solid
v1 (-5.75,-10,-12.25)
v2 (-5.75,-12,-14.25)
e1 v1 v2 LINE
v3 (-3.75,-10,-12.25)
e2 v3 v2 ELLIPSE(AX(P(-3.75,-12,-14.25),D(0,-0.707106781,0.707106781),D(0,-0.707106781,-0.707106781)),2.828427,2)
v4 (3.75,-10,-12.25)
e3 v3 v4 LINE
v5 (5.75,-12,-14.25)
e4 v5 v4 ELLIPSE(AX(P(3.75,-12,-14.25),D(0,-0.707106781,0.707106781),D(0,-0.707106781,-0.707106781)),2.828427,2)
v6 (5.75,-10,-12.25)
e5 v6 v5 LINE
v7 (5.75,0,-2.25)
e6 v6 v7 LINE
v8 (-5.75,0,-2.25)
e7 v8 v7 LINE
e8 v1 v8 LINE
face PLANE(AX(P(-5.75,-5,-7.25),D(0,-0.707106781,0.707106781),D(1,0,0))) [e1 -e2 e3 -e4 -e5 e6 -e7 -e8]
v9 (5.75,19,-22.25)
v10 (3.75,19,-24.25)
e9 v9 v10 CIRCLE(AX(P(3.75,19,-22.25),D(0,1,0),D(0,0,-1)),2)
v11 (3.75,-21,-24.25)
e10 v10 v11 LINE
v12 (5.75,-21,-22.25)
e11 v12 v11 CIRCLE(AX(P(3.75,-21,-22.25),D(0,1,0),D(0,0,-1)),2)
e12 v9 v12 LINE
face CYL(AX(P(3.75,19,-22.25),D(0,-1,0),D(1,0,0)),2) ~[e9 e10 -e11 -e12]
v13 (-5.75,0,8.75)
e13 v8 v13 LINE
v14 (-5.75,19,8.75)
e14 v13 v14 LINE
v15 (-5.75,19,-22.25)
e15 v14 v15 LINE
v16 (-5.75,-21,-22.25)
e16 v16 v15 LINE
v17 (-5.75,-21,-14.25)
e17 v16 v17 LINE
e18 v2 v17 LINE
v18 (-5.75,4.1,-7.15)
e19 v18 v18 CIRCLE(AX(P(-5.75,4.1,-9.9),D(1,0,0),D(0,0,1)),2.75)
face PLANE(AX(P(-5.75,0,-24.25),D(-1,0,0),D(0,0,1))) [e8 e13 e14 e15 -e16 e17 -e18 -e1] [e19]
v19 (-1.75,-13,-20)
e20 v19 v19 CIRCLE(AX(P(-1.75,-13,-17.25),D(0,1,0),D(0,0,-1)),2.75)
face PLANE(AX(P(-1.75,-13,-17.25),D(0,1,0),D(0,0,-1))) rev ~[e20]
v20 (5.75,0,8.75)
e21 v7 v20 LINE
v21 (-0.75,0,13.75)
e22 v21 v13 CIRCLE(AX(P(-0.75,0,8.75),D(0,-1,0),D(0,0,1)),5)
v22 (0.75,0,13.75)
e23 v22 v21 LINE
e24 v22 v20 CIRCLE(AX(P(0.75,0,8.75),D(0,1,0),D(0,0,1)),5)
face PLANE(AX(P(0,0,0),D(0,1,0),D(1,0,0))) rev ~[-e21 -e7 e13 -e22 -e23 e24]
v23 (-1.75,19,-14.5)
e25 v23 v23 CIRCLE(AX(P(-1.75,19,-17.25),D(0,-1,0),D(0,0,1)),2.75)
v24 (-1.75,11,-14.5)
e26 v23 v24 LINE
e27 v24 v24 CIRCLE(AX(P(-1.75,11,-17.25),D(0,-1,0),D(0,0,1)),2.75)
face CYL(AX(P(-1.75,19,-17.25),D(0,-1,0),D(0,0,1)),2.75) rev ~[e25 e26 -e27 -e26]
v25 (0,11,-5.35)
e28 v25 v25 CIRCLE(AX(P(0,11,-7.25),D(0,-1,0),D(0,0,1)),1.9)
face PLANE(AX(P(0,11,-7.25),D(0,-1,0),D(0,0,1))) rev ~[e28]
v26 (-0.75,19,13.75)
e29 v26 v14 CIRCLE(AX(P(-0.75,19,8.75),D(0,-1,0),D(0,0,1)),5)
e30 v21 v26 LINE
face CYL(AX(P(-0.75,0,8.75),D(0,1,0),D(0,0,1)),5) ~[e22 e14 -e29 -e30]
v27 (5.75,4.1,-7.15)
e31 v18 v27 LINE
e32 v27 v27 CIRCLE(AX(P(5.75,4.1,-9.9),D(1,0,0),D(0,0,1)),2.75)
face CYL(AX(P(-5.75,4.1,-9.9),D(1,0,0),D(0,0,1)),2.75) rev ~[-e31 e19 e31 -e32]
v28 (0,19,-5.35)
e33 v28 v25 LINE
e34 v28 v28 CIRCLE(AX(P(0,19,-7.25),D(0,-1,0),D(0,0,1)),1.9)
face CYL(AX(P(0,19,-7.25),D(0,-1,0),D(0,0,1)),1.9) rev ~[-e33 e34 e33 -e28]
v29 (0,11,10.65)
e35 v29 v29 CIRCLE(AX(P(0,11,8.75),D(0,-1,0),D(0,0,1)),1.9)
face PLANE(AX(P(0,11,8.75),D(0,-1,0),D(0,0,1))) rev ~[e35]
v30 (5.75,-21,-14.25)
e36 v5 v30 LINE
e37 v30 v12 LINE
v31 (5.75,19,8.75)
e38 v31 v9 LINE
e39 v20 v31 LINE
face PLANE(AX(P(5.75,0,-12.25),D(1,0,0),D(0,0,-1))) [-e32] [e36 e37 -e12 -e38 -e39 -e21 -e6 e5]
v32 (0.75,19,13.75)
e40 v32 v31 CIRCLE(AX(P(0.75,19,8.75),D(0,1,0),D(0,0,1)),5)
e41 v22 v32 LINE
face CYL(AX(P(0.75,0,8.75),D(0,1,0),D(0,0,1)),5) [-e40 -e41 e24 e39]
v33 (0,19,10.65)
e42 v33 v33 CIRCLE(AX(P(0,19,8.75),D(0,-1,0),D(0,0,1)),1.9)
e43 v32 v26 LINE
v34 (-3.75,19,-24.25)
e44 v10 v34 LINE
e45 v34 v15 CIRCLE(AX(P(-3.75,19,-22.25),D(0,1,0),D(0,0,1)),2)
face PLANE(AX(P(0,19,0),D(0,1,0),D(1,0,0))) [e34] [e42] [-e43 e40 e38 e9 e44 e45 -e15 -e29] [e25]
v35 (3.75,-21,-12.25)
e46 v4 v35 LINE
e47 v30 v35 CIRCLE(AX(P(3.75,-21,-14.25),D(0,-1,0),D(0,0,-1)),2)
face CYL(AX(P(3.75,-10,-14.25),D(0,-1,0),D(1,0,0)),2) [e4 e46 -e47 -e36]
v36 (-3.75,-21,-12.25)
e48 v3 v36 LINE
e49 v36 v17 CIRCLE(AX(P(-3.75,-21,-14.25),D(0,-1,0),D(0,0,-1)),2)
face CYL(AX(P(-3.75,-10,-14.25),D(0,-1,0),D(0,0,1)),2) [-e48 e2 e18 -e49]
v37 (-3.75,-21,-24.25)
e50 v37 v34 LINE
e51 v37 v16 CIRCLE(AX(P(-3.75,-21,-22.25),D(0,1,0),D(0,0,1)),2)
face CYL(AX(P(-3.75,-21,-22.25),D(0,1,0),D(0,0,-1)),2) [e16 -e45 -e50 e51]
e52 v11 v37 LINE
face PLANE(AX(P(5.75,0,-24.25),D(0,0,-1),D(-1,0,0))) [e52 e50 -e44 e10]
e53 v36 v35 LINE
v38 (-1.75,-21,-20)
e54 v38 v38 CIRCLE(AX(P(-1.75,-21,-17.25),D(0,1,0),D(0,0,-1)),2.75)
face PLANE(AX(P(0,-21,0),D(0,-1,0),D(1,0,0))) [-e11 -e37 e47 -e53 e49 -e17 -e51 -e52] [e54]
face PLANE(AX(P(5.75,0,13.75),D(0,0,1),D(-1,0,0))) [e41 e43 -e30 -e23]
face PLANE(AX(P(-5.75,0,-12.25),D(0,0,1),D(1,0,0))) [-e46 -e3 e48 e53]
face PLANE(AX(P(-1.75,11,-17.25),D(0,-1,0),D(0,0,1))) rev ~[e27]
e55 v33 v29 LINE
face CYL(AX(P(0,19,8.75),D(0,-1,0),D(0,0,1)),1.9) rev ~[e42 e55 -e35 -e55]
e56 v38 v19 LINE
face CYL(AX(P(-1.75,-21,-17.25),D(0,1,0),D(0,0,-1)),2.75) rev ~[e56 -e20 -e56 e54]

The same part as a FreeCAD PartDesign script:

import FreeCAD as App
import Part
import Sketcher
from FreeCAD import Vector


def edges_at(feature, points):
    """Names of the edges that pass closest to the given points."""
    edges = feature.Shape.Edges
    near = lambda p: min(range(len(edges)), key=lambda i: edges[i].distToShape(Part.Vertex(*p))[0])
    return sorted({f"Edge{near(p) + 1}" for p in points})


def add_polygon(sketch, points):
    """Adds a closed chain of lines whose ends are joined by coincident constraints."""
    first, n = sketch.GeometryCount, len(points)
    for a, b in zip(points, points[1:] + points[:1]):
        sketch.addGeometry(Part.LineSegment(App.Vector(*a, 0), App.Vector(*b, 0)), False)
    for i in range(n):
        sketch.addConstraint(Sketcher.Constraint("Coincident", first + i, 2, first + (i + 1) % n, 1))

doc = App.newDocument("Part")
params = doc.addObject("Spreadsheet::Sheet", "Params")
for row, (alias, value) in enumerate([
    ("sketch1_width", "11.5 mm"),
    ("sketch1_height", "27.5 mm"),
    ("pad1_length", "19 mm"),
    ("fillet_radius", "5 mm"),
    ("sketch2_diameter", "3.8 mm"),
    ("hole_diameter", "3.8 mm"),
    ("hole_depth", "8 mm"),
    ("sketch3_diameter", "5.5 mm"),
    ("hole2_diameter", "5.5 mm"),
    ("sketch4_width", "11.5 mm"),
    ("sketch4_height", "10.5 mm"),
    ("pad2_length", "19 mm"),
    ("sketch5_diameter", "5.5 mm"),
    ("hole3_diameter", "5.5 mm"),
    ("hole3_depth", "8 mm"),
    ("sketch6_height", "12 mm"),
    ("sketch6_width", "11.5 mm"),
    ("pad3_length", "21 mm"),
    ("chamfer_size", "10 mm"),
    ("sketch7_diameter", "5.5 mm"),
    ("hole4_diameter", "5.5 mm"),
    ("hole4_depth", "8 mm"),
    ("fillet2_radius", "2 mm"),
], start=1):
    params.set(f"A{row}", alias)
    params.set(f"B{row}", "=" + value)
    params.setAlias(f"B{row}", alias)

body = doc.addObject("PartDesign::Body", "Body")

# Sketch on XZ plane
sketch1 = body.newObject("Sketcher::SketchObject", "Sketch")
sketch1.AttachmentSupport = (doc.getObject("XZ_Plane"), [""])
sketch1.MapMode = "FlatFace"
add_polygon(sketch1, [(-5.75, 13.75), (5.75, 13.75), (5.75, -13.75), (-5.75, -13.75)])  # lines 0-3
sketch1.addConstraint(Sketcher.Constraint("Horizontal", 0))
sketch1.addConstraint(Sketcher.Constraint("Vertical", 1))
sketch1.addConstraint(Sketcher.Constraint("Horizontal", 2))
sketch1.addConstraint(Sketcher.Constraint("Vertical", 3))
sketch1.addConstraint(Sketcher.Constraint("Symmetric", 0, 2, 2, 2, -1, 1))
sketch1.addConstraint(Sketcher.Constraint("DistanceX", 0, 1, 0, 2, 11.5))
sketch1.addConstraint(Sketcher.Constraint("DistanceY", 1, 2, 1, 1, 27.5))
sketch1.setExpression("Constraints[9]", "Params.sketch1_width")
sketch1.setExpression("Constraints[10]", "Params.sketch1_height")
pad1 = body.newObject("PartDesign::Pad", "Pad")
pad1.Profile = sketch1
pad1.setExpression("Length", "Params.pad1_length")
pad1.Reversed = True
doc.recompute()

fillet = body.newObject("PartDesign::Fillet", "Fillet")
fillet.Base = (pad1, edges_at(pad1, [(5.75, 9.5, 13.75), (-5.75, 9.5, 13.75)]))
fillet.setExpression("Radius", "Params.fillet_radius")

# Sketch on XZ plane
sketch2 = body.newObject("Sketcher::SketchObject", "Sketch001")
sketch2.AttachmentSupport = (doc.getObject("XZ_Plane"), [""])
sketch2.MapMode = "FlatFace"
sketch2.AttachmentOffset = App.Placement(Vector(0, 0, -19), App.Rotation())
sketch2.addGeometry(Part.Circle(Vector(0, -7.25, 0), Vector(0, 0, 1), 1.9), False)
sketch2.addGeometry(Part.Circle(Vector(0, 8.75, 0), Vector(0, 0, 1), 1.9), False)
sketch2.addConstraint(Sketcher.Constraint("Equal", 0, 1))
sketch2.addConstraint(Sketcher.Constraint("PointOnObject", 0, 3, -2))
sketch2.addConstraint(Sketcher.Constraint("PointOnObject", 1, 3, -2))
sketch2.addConstraint(Sketcher.Constraint("Diameter", 0, 3.8))
sketch2.addConstraint(Sketcher.Constraint("DistanceY", 0, 3, 1, 3, 16.0))
sketch2.addConstraint(Sketcher.Constraint("DistanceY", 0, 3, -1, 1, 7.25))
sketch2.setExpression("Constraints[3]", "Params.sketch2_diameter")
doc.recompute()
hole = body.newObject("PartDesign::Hole", "Hole")
hole.Profile = sketch2
hole.ThreadType = "None"
hole.setExpression("Diameter", "Params.hole_diameter")
hole.DepthType = "Dimension"
hole.setExpression("Depth", "Params.hole_depth")
hole.DrillPoint = "Flat"
hole.Reversed = True

# Sketch on YZ plane
sketch3 = body.newObject("Sketcher::SketchObject", "Sketch002")
sketch3.AttachmentSupport = (doc.getObject("YZ_Plane"), [""])
sketch3.MapMode = "FlatFace"
sketch3.AttachmentOffset = App.Placement(Vector(0, 0, -5.75), App.Rotation())
sketch3.addGeometry(Part.Circle(Vector(4.1, -9.9, 0), Vector(0, 0, 1), 2.75), False)
sketch3.addConstraint(Sketcher.Constraint("Diameter", 0, 5.5))
sketch3.addConstraint(Sketcher.Constraint("DistanceX", -1, 1, 0, 3, 4.1))
sketch3.addConstraint(Sketcher.Constraint("DistanceY", 0, 3, -1, 1, 9.9))
sketch3.setExpression("Constraints[0]", "Params.sketch3_diameter")
doc.recompute()
hole2 = body.newObject("PartDesign::Hole", "Hole001")
hole2.Profile = sketch3
hole2.ThreadType = "None"
hole2.setExpression("Diameter", "Params.hole2_diameter")
hole2.DepthType = "ThroughAll"
hole2.Reversed = True

# Sketch on XZ plane
sketch4 = body.newObject("Sketcher::SketchObject", "Sketch003")
sketch4.AttachmentSupport = (doc.getObject("XZ_Plane"), [""])
sketch4.MapMode = "FlatFace"
sketch4.AttachmentOffset = App.Placement(Vector(0, 0, -19), App.Rotation())
add_polygon(sketch4, [(-5.75, -24.25), (-5.75, -13.75), (5.75, -13.75), (5.75, -24.25)])  # lines 0-3
sketch4.addConstraint(Sketcher.Constraint("Vertical", 0))
sketch4.addConstraint(Sketcher.Constraint("Horizontal", 1))
sketch4.addConstraint(Sketcher.Constraint("Vertical", 2))
sketch4.addConstraint(Sketcher.Constraint("Horizontal", 3))
sketch4.addConstraint(Sketcher.Constraint("DistanceX", 1, 1, 1, 2, 11.5))
sketch4.addConstraint(Sketcher.Constraint("DistanceY", 0, 1, 0, 2, 10.5))
sketch4.addConstraint(Sketcher.Constraint("DistanceX", 0, 2, -1, 1, 5.75))
sketch4.addConstraint(Sketcher.Constraint("DistanceY", 0, 2, -1, 1, 13.75))
sketch4.setExpression("Constraints[8]", "Params.sketch4_width")
sketch4.setExpression("Constraints[9]", "Params.sketch4_height")
pad2 = body.newObject("PartDesign::Pad", "Pad001")
pad2.Profile = sketch4
pad2.setExpression("Length", "Params.pad2_length")

# Sketch on XZ plane
sketch5 = body.newObject("Sketcher::SketchObject", "Sketch004")
sketch5.AttachmentSupport = (doc.getObject("XZ_Plane"), [""])
sketch5.MapMode = "FlatFace"
sketch5.AttachmentOffset = App.Placement(Vector(0, 0, -19), App.Rotation())
sketch5.addGeometry(Part.Circle(Vector(-1.75, -17.25, 0), Vector(0, 0, 1), 2.75), False)
sketch5.addConstraint(Sketcher.Constraint("Diameter", 0, 5.5))
sketch5.addConstraint(Sketcher.Constraint("DistanceX", 0, 3, -1, 1, 1.75))
sketch5.addConstraint(Sketcher.Constraint("DistanceY", 0, 3, -1, 1, 17.25))
sketch5.setExpression("Constraints[0]", "Params.sketch5_diameter")
doc.recompute()
hole3 = body.newObject("PartDesign::Hole", "Hole002")
hole3.Profile = sketch5
hole3.ThreadType = "None"
hole3.setExpression("Diameter", "Params.hole3_diameter")
hole3.DepthType = "Dimension"
hole3.setExpression("Depth", "Params.hole3_depth")
hole3.DrillPoint = "Flat"
hole3.Reversed = True

# Sketch on XZ plane
sketch6 = body.newObject("Sketcher::SketchObject", "Sketch005")
sketch6.AttachmentSupport = (doc.getObject("XZ_Plane"), [""])
sketch6.MapMode = "FlatFace"
add_polygon(sketch6, [(-5.75, -24.25), (5.75, -24.25), (5.75, -12.25), (-5.75, -12.25)])  # lines 0-3
sketch6.addConstraint(Sketcher.Constraint("Horizontal", 0))
sketch6.addConstraint(Sketcher.Constraint("Vertical", 1))
sketch6.addConstraint(Sketcher.Constraint("Horizontal", 2))
sketch6.addConstraint(Sketcher.Constraint("Vertical", 3))
sketch6.addConstraint(Sketcher.Constraint("DistanceY", 1, 1, 1, 2, 12.0))
sketch6.addConstraint(Sketcher.Constraint("DistanceX", 0, 1, 0, 2, 11.5))
sketch6.addConstraint(Sketcher.Constraint("DistanceX", -1, 1, 0, 2, 5.75))
sketch6.addConstraint(Sketcher.Constraint("DistanceY", 0, 2, -1, 1, 24.25))
sketch6.setExpression("Constraints[8]", "Params.sketch6_height")
sketch6.setExpression("Constraints[9]", "Params.sketch6_width")
pad3 = body.newObject("PartDesign::Pad", "Pad002")
pad3.Profile = sketch6
pad3.setExpression("Length", "Params.pad3_length")
doc.recompute()

chamfer = body.newObject("PartDesign::Chamfer", "Chamfer")
chamfer.Base = (pad3, edges_at(pad3, [(0, 0, -12.25)]))
chamfer.setExpression("Size", "Params.chamfer_size")

# Sketch on XZ plane
sketch7 = body.newObject("Sketcher::SketchObject", "Sketch006")
sketch7.AttachmentSupport = (doc.getObject("XZ_Plane"), [""])
sketch7.MapMode = "FlatFace"
sketch7.AttachmentOffset = App.Placement(Vector(0, 0, 21), App.Rotation())
sketch7.addGeometry(Part.Circle(Vector(-1.75, -17.25, 0), Vector(0, 0, 1), 2.75), False)
sketch7.addConstraint(Sketcher.Constraint("Diameter", 0, 5.5))
sketch7.addConstraint(Sketcher.Constraint("DistanceX", 0, 3, -1, 1, 1.75))
sketch7.addConstraint(Sketcher.Constraint("DistanceY", 0, 3, -1, 1, 17.25))
sketch7.setExpression("Constraints[0]", "Params.sketch7_diameter")
doc.recompute()
hole4 = body.newObject("PartDesign::Hole", "Hole003")
hole4.Profile = sketch7
hole4.ThreadType = "None"
hole4.setExpression("Diameter", "Params.hole4_diameter")
hole4.DepthType = "Dimension"
hole4.setExpression("Depth", "Params.hole4_depth")
hole4.DrillPoint = "Flat"
doc.recompute()

fillet2 = body.newObject("PartDesign::Fillet", "Fillet001")
fillet2.Base = (hole4, edges_at(hole4, [
    (-5.75, -1, -24.25),
    (5.75, -1, -24.25),
    (-5.75, -15.5, -12.25),
    (5.75, -15.5, -12.25),
]))
fillet2.setExpression("Radius", "Params.fillet2_radius")

doc.recompute()
